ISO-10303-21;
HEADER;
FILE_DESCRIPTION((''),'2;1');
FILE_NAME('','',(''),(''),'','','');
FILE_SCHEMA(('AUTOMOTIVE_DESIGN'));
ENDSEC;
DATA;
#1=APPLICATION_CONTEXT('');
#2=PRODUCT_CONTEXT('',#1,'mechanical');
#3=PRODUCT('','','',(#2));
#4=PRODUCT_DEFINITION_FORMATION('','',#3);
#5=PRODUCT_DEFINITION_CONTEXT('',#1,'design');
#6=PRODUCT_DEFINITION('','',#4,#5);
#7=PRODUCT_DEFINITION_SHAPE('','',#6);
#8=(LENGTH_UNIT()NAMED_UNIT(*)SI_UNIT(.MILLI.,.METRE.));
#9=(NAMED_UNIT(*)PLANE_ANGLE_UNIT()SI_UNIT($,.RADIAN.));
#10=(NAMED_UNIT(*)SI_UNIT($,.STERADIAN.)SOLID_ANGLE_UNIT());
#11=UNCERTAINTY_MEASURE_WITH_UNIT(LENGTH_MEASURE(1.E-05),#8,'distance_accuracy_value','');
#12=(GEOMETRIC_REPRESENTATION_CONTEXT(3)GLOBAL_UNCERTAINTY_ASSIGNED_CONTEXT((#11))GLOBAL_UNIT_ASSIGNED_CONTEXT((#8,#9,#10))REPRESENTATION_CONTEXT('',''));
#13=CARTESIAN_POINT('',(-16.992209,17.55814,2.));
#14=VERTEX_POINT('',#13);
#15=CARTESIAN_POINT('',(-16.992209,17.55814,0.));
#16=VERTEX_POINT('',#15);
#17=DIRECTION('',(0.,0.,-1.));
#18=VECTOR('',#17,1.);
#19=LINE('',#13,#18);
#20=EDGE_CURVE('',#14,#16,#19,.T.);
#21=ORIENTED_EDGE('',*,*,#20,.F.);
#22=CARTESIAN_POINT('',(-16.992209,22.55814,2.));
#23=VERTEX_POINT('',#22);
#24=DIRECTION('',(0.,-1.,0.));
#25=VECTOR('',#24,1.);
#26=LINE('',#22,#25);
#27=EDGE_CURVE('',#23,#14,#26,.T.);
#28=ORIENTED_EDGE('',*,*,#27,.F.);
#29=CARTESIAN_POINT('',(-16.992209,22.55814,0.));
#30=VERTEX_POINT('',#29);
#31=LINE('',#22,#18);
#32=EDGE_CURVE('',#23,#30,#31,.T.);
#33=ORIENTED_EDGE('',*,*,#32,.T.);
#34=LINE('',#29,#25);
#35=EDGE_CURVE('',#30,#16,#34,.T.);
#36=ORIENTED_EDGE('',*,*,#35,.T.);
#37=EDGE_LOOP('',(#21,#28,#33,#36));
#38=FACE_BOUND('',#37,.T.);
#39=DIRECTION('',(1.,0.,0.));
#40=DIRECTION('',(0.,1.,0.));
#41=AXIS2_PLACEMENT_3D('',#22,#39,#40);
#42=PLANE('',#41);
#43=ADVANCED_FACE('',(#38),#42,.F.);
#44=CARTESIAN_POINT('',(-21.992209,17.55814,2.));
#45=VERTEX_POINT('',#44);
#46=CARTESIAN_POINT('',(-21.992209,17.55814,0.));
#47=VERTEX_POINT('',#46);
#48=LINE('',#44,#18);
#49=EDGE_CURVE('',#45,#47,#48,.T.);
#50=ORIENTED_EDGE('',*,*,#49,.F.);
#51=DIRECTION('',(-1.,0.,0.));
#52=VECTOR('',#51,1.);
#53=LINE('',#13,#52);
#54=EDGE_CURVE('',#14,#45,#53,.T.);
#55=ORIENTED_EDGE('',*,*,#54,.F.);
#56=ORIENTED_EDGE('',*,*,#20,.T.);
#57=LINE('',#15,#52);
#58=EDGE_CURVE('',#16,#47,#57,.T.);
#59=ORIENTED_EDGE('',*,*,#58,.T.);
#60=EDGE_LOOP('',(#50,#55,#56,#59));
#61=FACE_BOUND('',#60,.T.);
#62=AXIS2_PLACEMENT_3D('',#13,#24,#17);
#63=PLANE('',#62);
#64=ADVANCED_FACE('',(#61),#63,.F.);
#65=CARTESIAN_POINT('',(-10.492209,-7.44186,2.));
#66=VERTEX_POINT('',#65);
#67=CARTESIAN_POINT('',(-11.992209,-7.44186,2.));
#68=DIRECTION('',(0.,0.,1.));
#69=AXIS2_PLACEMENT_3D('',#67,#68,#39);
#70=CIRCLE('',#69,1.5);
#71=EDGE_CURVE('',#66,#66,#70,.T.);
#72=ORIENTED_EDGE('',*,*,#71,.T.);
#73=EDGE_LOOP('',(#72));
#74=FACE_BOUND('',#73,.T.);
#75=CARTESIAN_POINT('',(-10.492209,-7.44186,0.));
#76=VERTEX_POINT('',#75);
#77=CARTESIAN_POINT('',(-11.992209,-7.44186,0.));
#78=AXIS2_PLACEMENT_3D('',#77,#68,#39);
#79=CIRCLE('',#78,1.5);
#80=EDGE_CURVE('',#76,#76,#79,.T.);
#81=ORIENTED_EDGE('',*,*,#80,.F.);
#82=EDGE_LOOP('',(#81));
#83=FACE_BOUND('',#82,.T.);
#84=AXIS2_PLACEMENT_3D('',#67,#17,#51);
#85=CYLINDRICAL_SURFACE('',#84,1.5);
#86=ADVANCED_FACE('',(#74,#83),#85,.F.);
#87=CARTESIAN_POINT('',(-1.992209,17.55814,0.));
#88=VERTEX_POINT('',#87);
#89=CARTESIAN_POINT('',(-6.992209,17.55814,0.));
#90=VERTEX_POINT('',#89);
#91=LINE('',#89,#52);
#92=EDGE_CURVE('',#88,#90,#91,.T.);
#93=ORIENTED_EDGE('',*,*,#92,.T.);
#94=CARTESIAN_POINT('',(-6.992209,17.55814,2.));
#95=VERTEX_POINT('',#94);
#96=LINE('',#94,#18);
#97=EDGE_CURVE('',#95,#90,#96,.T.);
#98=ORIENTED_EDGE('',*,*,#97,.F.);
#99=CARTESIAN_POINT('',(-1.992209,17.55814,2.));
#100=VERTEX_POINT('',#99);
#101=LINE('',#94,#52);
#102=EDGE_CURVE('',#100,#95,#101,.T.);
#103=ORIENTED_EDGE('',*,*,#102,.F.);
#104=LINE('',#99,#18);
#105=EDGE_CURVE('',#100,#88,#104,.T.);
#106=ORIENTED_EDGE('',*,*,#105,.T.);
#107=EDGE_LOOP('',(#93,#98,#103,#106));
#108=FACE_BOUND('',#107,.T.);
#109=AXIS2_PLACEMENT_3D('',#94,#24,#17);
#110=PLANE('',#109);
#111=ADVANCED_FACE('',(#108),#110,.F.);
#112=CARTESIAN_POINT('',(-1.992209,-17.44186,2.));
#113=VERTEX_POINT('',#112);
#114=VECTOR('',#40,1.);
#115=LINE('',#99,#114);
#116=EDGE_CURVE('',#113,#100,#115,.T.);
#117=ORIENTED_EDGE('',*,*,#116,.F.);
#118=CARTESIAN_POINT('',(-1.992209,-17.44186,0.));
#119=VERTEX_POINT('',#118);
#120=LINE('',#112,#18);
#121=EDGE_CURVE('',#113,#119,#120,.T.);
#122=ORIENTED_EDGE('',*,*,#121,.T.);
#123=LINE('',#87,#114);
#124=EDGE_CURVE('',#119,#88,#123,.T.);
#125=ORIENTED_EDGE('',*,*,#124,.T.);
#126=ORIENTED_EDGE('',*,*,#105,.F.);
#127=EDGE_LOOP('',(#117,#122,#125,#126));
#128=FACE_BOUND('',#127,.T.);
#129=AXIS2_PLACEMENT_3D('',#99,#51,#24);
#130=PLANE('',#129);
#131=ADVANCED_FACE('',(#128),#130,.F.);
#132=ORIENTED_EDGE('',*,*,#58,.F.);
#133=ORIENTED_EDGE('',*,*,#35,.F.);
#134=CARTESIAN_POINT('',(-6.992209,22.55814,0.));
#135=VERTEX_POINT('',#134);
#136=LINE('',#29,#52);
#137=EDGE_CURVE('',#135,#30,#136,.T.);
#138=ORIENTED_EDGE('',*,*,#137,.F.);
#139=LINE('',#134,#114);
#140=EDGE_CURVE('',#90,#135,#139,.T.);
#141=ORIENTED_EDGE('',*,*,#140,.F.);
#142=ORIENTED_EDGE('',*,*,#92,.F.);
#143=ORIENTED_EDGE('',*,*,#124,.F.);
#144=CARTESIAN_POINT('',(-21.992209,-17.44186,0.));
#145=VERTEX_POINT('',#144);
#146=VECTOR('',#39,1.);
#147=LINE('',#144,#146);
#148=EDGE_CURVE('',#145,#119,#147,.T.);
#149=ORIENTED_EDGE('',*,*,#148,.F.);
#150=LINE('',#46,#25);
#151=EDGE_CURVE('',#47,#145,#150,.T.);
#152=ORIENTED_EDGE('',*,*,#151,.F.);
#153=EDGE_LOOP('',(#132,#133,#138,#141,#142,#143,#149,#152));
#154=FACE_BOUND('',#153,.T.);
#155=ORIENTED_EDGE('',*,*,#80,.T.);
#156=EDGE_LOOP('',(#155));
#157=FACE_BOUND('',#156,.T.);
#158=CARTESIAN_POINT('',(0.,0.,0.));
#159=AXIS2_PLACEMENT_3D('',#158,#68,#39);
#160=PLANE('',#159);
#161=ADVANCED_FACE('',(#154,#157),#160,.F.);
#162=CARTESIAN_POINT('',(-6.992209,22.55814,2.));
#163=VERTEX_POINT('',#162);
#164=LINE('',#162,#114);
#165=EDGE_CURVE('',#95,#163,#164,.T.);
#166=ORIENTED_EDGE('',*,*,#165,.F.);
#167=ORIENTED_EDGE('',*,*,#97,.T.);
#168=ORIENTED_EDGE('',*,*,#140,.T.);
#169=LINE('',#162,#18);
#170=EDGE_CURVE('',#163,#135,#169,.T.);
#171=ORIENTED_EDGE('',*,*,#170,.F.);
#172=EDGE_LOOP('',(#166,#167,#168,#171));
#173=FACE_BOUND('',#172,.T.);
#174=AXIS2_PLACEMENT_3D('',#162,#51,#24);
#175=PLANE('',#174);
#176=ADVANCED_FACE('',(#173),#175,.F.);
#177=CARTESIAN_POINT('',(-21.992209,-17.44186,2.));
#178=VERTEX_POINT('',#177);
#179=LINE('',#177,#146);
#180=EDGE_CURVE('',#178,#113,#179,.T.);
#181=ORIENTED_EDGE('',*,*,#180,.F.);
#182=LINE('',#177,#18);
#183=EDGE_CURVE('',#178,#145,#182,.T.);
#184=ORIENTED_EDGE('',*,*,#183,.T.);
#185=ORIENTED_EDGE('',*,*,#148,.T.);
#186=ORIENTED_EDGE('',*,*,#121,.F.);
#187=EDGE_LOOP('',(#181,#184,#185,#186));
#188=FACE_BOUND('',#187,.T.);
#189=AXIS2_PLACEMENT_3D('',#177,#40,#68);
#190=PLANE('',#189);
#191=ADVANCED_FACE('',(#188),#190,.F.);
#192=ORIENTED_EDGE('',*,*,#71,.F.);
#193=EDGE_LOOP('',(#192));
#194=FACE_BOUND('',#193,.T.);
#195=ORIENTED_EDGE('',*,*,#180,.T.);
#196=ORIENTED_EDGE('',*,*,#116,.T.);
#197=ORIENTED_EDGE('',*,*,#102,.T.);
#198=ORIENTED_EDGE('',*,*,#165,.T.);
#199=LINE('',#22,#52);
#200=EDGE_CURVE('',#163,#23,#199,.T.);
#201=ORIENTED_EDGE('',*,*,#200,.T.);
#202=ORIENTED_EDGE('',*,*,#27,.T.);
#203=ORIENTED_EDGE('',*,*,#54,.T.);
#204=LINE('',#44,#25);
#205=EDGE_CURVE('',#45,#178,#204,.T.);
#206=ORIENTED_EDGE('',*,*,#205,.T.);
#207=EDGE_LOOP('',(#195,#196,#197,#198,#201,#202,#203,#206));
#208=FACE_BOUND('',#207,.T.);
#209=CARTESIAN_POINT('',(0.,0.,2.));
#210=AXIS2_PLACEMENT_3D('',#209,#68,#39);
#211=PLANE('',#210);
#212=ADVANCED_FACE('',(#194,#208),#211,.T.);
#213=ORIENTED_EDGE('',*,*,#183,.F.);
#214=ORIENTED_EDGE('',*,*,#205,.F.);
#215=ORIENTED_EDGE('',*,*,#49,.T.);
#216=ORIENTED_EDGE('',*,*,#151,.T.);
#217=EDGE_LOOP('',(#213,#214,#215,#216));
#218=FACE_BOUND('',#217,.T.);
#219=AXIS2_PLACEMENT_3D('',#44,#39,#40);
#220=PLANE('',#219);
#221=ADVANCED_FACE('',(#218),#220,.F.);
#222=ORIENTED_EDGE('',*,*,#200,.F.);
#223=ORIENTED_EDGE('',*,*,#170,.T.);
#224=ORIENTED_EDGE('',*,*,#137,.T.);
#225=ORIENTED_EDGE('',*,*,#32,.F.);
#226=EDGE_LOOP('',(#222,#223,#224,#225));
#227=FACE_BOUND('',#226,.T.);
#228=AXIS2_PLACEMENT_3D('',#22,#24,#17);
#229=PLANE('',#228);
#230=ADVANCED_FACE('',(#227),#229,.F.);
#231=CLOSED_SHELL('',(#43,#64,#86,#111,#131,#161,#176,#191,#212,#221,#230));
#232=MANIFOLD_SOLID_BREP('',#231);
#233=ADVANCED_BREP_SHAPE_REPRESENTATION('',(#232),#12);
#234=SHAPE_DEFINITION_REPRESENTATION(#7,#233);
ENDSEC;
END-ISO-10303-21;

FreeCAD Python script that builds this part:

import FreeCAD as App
import Part
import Sketcher
from FreeCAD import Vector

doc = App.newDocument("Part")
params = doc.addObject("Spreadsheet::Sheet", "Params")
for row, (alias, value) in enumerate([
    ("sketch1_diameter", "3 mm"),
    ("sketch1_width", "5 mm"),
    ("sketch1_width2", "20 mm"),
    ("sketch1_height", "35 mm"),
    ("pad1_length", "2 mm"),
], start=1):
    params.set(f"A{row}", alias)
    params.set(f"B{row}", "=" + value)
    params.setAlias(f"B{row}", alias)

body = doc.addObject("PartDesign::Body", "Body")

# Sketch on XY plane
sketch1 = doc.addObject("Sketcher::SketchObject", "Sketch")
body.addObject(sketch1)
sketch1.AttachmentSupport = (doc.XY_Plane, [""])
sketch1.MapMode = "FlatFace"
sketch1.addGeometry(Part.LineSegment(Vector(-16.992209, 17.55814, 0), Vector(-21.992209, 17.55814, 0)), False)
sketch1.addGeometry(Part.LineSegment(Vector(-21.992209, 17.55814, 0), Vector(-21.992209, -17.44186, 0)), False)
sketch1.addGeometry(Part.LineSegment(Vector(-21.992209, -17.44186, 0), Vector(-1.992209, -17.44186, 0)), False)
sketch1.addGeometry(Part.LineSegment(Vector(-1.992209, -17.44186, 0), Vector(-1.992209, 17.55814, 0)), False)
sketch1.addGeometry(Part.LineSegment(Vector(-1.992209, 17.55814, 0), Vector(-6.992209, 17.55814, 0)), False)
sketch1.addGeometry(Part.LineSegment(Vector(-6.992209, 17.55814, 0), Vector(-6.992209, 22.55814, 0)), False)
sketch1.addGeometry(Part.LineSegment(Vector(-6.992209, 22.55814, 0), Vector(-16.992209, 22.55814, 0)), False)
sketch1.addGeometry(Part.LineSegment(Vector(-16.992209, 22.55814, 0), Vector(-16.992209, 17.55814, 0)), False)
sketch1.addGeometry(Part.Circle(Vector(-11.992209, -7.44186, 0), Vector(0, 0, 1), 1.5), False)
sketch1.addConstraint(Sketcher.Constraint("Coincident", 0, 2, 1, 1))
sketch1.addConstraint(Sketcher.Constraint("Coincident", 1, 2, 2, 1))
sketch1.addConstraint(Sketcher.Constraint("Coincident", 2, 2, 3, 1))
sketch1.addConstraint(Sketcher.Constraint("Coincident", 3, 2, 4, 1))
sketch1.addConstraint(Sketcher.Constraint("Coincident", 4, 2, 5, 1))
sketch1.addConstraint(Sketcher.Constraint("Coincident", 5, 2, 6, 1))
sketch1.addConstraint(Sketcher.Constraint("Coincident", 6, 2, 7, 1))
sketch1.addConstraint(Sketcher.Constraint("Coincident", 7, 2, 0, 1))
sketch1.addConstraint(Sketcher.Constraint("Horizontal", 0))
sketch1.addConstraint(Sketcher.Constraint("Vertical", 1))
sketch1.addConstraint(Sketcher.Constraint("Horizontal", 2))
sketch1.addConstraint(Sketcher.Constraint("Vertical", 3))
sketch1.addConstraint(Sketcher.Constraint("Horizontal", 4))
sketch1.addConstraint(Sketcher.Constraint("Vertical", 5))
sketch1.addConstraint(Sketcher.Constraint("Horizontal", 6))
sketch1.addConstraint(Sketcher.Constraint("Vertical", 7))
sketch1.addConstraint(Sketcher.Constraint("Horizontal", 0, 2, 3, 2))
sketch1.addConstraint(Sketcher.Constraint("Equal", 0, 4))
sketch1.addConstraint(Sketcher.Constraint("Equal", 4, 5))
sketch1.addConstraint(Sketcher.Constraint("Diameter", 8, 3.0))
sketch1.addConstraint(Sketcher.Constraint("DistanceX", 0, 2, 0, 1, 5.0))
sketch1.addConstraint(Sketcher.Constraint("DistanceX", 2, 1, 2, 2, 20.0))
sketch1.addConstraint(Sketcher.Constraint("DistanceY", 1, 2, 1, 1, 35.0))
sketch1.addConstraint(Sketcher.Constraint("DistanceX", 0, 2, 8, 3, 10.0))
sketch1.addConstraint(Sketcher.Constraint("DistanceY", 8, 3, 0, 2, 25.0))
sketch1.addConstraint(Sketcher.Constraint("DistanceX", 8, 3, -1, 1, 11.992209))
sketch1.addConstraint(Sketcher.Constraint("DistanceY", 8, 3, -1, 1, 7.44186))
sketch1.setExpression("Constraints[19]", "Params.sketch1_diameter")
sketch1.setExpression("Constraints[20]", "Params.sketch1_width")
sketch1.setExpression("Constraints[21]", "Params.sketch1_width2")
sketch1.setExpression("Constraints[22]", "Params.sketch1_height")
pad1 = doc.addObject("PartDesign::Pad", "Pad")
body.addObject(pad1)
pad1.Profile = sketch1
pad1.setExpression("Length", "Params.pad1_length")

doc.recompute()
